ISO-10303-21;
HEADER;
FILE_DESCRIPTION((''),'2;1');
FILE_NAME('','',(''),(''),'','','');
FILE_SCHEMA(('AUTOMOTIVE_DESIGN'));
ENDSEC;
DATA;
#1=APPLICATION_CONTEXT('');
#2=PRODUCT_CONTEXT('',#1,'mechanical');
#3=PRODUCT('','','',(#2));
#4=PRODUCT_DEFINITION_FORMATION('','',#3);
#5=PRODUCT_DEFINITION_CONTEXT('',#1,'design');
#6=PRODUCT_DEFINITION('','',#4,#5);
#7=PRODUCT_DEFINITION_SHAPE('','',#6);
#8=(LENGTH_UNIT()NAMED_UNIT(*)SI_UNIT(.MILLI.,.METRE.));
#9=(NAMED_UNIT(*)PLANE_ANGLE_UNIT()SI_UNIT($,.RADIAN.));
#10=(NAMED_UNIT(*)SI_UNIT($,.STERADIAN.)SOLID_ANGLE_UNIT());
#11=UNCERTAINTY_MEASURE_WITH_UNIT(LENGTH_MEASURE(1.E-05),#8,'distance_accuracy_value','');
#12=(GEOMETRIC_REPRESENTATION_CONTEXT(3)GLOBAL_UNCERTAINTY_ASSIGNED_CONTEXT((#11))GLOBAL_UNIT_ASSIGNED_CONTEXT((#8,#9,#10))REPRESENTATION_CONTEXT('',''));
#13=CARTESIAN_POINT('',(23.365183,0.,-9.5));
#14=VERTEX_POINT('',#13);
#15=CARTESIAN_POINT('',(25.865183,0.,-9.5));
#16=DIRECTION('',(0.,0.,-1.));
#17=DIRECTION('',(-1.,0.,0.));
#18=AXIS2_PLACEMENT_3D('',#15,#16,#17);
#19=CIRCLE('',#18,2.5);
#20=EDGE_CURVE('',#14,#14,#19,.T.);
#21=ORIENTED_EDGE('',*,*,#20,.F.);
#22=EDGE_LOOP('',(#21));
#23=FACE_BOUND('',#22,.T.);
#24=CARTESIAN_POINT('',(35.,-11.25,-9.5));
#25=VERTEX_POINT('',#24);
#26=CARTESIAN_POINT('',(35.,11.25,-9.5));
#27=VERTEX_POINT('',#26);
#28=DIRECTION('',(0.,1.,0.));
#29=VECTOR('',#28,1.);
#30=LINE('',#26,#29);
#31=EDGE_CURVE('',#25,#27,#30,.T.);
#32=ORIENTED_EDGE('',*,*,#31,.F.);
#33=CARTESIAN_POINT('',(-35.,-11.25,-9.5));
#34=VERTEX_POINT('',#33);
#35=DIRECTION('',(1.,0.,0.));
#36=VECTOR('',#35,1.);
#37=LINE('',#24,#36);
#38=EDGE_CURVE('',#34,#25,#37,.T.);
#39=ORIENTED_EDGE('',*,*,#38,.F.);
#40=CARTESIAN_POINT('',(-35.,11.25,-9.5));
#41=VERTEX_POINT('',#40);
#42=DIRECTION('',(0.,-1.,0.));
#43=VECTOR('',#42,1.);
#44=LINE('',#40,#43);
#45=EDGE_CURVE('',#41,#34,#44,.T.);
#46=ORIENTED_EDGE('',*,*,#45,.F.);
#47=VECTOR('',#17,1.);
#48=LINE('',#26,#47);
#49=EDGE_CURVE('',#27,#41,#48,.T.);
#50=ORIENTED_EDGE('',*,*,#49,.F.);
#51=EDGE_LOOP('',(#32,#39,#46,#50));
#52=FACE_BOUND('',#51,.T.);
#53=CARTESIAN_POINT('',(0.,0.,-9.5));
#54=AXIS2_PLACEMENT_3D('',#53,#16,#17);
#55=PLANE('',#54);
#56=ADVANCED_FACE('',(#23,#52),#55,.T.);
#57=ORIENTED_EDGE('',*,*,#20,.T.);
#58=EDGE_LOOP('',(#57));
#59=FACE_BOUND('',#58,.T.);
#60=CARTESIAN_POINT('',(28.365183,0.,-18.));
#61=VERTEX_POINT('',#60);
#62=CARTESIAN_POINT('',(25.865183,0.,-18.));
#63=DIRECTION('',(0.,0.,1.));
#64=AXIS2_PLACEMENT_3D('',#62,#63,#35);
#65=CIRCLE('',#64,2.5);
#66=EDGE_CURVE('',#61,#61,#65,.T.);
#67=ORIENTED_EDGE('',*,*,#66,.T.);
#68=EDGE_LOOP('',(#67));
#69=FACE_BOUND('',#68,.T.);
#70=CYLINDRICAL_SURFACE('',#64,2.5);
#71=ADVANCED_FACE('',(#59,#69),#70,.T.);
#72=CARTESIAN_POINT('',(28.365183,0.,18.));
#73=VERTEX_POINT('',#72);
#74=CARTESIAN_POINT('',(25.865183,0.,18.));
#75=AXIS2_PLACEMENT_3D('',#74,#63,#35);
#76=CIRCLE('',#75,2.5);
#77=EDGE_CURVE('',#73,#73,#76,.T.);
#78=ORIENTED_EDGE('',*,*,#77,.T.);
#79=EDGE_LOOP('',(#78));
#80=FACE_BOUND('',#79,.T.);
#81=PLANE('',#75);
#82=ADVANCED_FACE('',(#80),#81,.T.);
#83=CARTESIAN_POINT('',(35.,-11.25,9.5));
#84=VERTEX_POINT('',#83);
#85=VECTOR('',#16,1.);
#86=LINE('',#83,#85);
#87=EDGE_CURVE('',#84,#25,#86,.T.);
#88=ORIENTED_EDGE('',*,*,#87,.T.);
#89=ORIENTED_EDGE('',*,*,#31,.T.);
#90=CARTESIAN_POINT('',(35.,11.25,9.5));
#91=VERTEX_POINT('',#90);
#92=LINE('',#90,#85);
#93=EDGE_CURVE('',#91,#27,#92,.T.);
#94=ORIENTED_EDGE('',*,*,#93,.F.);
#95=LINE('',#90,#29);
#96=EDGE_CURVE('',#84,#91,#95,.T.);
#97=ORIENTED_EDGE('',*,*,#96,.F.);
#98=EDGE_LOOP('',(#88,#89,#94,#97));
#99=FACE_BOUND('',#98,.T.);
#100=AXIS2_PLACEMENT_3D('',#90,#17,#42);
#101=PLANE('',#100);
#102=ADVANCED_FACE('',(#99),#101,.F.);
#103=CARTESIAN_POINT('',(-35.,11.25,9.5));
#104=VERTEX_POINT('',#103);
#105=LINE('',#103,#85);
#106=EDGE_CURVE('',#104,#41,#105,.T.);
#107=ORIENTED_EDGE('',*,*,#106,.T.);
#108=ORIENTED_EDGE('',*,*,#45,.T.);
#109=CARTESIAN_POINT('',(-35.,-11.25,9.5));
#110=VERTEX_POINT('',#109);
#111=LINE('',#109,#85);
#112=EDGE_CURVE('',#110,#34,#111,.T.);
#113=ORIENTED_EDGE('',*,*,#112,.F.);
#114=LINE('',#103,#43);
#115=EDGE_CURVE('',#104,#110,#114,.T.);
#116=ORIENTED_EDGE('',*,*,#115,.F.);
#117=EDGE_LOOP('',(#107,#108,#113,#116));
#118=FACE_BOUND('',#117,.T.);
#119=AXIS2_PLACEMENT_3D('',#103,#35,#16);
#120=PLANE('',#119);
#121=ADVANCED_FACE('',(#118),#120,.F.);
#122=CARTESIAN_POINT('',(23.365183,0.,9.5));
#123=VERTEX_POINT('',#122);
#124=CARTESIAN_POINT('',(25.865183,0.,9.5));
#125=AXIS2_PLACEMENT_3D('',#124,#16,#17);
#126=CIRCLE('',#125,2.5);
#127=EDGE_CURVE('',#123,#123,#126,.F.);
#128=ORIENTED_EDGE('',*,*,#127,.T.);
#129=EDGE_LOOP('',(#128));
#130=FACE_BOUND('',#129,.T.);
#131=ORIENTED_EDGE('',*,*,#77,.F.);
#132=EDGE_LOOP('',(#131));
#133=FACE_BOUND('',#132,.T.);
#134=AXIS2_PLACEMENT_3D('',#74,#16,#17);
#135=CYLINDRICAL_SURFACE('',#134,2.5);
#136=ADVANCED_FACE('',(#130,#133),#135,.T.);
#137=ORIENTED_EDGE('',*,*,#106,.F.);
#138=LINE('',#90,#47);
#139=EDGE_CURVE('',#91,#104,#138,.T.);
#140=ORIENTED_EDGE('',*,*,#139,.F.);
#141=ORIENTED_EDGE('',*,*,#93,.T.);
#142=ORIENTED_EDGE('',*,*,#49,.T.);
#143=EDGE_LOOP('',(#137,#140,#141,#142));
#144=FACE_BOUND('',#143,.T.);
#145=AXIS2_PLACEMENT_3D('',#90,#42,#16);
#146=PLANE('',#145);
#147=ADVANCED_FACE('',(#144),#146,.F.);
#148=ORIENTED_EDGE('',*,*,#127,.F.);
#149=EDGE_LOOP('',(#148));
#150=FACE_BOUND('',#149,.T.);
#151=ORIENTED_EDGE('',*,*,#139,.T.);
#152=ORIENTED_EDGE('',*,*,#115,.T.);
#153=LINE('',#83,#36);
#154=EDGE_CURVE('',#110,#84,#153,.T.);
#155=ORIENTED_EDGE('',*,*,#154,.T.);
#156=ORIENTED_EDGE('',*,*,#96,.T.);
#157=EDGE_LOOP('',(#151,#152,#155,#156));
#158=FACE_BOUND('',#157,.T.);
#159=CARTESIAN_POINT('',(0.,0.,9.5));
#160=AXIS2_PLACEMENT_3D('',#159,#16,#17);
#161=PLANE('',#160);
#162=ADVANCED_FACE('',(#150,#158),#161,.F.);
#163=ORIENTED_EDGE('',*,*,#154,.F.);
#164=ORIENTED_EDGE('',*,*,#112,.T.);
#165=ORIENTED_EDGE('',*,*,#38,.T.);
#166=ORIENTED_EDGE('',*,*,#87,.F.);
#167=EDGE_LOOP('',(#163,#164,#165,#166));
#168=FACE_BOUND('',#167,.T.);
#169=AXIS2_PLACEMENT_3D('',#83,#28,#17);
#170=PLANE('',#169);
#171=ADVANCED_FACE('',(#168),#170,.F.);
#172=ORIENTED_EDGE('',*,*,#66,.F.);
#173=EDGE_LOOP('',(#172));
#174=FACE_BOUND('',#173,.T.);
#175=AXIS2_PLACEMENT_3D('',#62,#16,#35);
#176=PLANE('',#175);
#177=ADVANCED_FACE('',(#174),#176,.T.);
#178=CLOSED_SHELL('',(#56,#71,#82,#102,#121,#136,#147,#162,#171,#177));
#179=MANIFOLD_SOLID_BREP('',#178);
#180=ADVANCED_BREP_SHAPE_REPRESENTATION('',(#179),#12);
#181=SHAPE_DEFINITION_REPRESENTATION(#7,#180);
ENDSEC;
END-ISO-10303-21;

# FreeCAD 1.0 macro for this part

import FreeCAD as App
import Part
import Sketcher
from FreeCAD import Vector

doc = App.newDocument("Part")
body = doc.addObject("PartDesign::Body", "Body")

# Sketch on XY plane
sketch1 = body.newObject("Sketcher::SketchObject", "Sketch")
sketch1.AttachmentSupport = (doc.getObject("XY_Plane"), [""])
sketch1.MapMode = "FlatFace"
sketch1.addGeometry(Part.LineSegment(Vector(-35, 11, 0), Vector(-35, -11, 0)), False)
sketch1.addGeometry(Part.LineSegment(Vector(-35, -11, 0), Vector(35, -11, 0)), False)
sketch1.addGeometry(Part.LineSegment(Vector(35, -11, 0), Vector(35, 11, 0)), False)
sketch1.addGeometry(Part.LineSegment(Vector(35, 11, 0), Vector(-35, 11, 0)), False)
sketch1.addConstraint(Sketcher.Constraint("Coincident", 0, 2, 1, 1))
sketch1.addConstraint(Sketcher.Constraint("Coincident", 1, 2, 2, 1))
sketch1.addConstraint(Sketcher.Constraint("Coincident", 2, 2, 3, 1))
sketch1.addConstraint(Sketcher.Constraint("Coincident", 3, 2, 0, 1))
sketch1.addConstraint(Sketcher.Constraint("Vertical", 0))
sketch1.addConstraint(Sketcher.Constraint("Horizontal", 1))
sketch1.addConstraint(Sketcher.Constraint("Vertical", 2))
sketch1.addConstraint(Sketcher.Constraint("Horizontal", 3))
sketch1.addConstraint(Sketcher.Constraint("Symmetric", 0, 2, 2, 2, -1, 1))
sketch1.addConstraint(Sketcher.Constraint("DistanceX", 1, 1, 1, 2, 70.0))
sketch1.addConstraint(Sketcher.Constraint("DistanceY", 0, 2, 0, 1, 22.5))
pad1 = body.newObject("PartDesign::Pad", "Pad")
pad1.Profile = sketch1
pad1.Length = 19
pad1.Midplane = True

# Sketch on XY plane
sketch2 = body.newObject("Sketcher::SketchObject", "Sketch001")
sketch2.AttachmentSupport = (doc.getObject("XY_Plane"), [""])
sketch2.MapMode = "FlatFace"
sketch2.AttachmentOffset = App.Placement(Vector(0, 0, 9.5), App.Rotation())
sketch2.addGeometry(Part.Circle(Vector(25.9, 0, 0), Vector(0, 0, 1), 2.5), False)
sketch2.addConstraint(Sketcher.Constraint("PointOnObject", 0, 3, -1))
sketch2.addConstraint(Sketcher.Constraint("Diameter", 0, 5.0))
sketch2.addConstraint(Sketcher.Constraint("DistanceX", -1, 1, 0, 3, 25.865183))
pad2 = body.newObject("PartDesign::Pad", "Pad001")
pad2.Profile = sketch2
pad2.Length = 8.5
doc.recompute()

mirrored = body.newObject("PartDesign::Mirrored", "Mirrored")
mirrored.Originals = [pad2]
mirrored.MirrorPlane = (doc.getObject("XY_Plane"), [""])
body.Tip = mirrored

doc.recompute()
